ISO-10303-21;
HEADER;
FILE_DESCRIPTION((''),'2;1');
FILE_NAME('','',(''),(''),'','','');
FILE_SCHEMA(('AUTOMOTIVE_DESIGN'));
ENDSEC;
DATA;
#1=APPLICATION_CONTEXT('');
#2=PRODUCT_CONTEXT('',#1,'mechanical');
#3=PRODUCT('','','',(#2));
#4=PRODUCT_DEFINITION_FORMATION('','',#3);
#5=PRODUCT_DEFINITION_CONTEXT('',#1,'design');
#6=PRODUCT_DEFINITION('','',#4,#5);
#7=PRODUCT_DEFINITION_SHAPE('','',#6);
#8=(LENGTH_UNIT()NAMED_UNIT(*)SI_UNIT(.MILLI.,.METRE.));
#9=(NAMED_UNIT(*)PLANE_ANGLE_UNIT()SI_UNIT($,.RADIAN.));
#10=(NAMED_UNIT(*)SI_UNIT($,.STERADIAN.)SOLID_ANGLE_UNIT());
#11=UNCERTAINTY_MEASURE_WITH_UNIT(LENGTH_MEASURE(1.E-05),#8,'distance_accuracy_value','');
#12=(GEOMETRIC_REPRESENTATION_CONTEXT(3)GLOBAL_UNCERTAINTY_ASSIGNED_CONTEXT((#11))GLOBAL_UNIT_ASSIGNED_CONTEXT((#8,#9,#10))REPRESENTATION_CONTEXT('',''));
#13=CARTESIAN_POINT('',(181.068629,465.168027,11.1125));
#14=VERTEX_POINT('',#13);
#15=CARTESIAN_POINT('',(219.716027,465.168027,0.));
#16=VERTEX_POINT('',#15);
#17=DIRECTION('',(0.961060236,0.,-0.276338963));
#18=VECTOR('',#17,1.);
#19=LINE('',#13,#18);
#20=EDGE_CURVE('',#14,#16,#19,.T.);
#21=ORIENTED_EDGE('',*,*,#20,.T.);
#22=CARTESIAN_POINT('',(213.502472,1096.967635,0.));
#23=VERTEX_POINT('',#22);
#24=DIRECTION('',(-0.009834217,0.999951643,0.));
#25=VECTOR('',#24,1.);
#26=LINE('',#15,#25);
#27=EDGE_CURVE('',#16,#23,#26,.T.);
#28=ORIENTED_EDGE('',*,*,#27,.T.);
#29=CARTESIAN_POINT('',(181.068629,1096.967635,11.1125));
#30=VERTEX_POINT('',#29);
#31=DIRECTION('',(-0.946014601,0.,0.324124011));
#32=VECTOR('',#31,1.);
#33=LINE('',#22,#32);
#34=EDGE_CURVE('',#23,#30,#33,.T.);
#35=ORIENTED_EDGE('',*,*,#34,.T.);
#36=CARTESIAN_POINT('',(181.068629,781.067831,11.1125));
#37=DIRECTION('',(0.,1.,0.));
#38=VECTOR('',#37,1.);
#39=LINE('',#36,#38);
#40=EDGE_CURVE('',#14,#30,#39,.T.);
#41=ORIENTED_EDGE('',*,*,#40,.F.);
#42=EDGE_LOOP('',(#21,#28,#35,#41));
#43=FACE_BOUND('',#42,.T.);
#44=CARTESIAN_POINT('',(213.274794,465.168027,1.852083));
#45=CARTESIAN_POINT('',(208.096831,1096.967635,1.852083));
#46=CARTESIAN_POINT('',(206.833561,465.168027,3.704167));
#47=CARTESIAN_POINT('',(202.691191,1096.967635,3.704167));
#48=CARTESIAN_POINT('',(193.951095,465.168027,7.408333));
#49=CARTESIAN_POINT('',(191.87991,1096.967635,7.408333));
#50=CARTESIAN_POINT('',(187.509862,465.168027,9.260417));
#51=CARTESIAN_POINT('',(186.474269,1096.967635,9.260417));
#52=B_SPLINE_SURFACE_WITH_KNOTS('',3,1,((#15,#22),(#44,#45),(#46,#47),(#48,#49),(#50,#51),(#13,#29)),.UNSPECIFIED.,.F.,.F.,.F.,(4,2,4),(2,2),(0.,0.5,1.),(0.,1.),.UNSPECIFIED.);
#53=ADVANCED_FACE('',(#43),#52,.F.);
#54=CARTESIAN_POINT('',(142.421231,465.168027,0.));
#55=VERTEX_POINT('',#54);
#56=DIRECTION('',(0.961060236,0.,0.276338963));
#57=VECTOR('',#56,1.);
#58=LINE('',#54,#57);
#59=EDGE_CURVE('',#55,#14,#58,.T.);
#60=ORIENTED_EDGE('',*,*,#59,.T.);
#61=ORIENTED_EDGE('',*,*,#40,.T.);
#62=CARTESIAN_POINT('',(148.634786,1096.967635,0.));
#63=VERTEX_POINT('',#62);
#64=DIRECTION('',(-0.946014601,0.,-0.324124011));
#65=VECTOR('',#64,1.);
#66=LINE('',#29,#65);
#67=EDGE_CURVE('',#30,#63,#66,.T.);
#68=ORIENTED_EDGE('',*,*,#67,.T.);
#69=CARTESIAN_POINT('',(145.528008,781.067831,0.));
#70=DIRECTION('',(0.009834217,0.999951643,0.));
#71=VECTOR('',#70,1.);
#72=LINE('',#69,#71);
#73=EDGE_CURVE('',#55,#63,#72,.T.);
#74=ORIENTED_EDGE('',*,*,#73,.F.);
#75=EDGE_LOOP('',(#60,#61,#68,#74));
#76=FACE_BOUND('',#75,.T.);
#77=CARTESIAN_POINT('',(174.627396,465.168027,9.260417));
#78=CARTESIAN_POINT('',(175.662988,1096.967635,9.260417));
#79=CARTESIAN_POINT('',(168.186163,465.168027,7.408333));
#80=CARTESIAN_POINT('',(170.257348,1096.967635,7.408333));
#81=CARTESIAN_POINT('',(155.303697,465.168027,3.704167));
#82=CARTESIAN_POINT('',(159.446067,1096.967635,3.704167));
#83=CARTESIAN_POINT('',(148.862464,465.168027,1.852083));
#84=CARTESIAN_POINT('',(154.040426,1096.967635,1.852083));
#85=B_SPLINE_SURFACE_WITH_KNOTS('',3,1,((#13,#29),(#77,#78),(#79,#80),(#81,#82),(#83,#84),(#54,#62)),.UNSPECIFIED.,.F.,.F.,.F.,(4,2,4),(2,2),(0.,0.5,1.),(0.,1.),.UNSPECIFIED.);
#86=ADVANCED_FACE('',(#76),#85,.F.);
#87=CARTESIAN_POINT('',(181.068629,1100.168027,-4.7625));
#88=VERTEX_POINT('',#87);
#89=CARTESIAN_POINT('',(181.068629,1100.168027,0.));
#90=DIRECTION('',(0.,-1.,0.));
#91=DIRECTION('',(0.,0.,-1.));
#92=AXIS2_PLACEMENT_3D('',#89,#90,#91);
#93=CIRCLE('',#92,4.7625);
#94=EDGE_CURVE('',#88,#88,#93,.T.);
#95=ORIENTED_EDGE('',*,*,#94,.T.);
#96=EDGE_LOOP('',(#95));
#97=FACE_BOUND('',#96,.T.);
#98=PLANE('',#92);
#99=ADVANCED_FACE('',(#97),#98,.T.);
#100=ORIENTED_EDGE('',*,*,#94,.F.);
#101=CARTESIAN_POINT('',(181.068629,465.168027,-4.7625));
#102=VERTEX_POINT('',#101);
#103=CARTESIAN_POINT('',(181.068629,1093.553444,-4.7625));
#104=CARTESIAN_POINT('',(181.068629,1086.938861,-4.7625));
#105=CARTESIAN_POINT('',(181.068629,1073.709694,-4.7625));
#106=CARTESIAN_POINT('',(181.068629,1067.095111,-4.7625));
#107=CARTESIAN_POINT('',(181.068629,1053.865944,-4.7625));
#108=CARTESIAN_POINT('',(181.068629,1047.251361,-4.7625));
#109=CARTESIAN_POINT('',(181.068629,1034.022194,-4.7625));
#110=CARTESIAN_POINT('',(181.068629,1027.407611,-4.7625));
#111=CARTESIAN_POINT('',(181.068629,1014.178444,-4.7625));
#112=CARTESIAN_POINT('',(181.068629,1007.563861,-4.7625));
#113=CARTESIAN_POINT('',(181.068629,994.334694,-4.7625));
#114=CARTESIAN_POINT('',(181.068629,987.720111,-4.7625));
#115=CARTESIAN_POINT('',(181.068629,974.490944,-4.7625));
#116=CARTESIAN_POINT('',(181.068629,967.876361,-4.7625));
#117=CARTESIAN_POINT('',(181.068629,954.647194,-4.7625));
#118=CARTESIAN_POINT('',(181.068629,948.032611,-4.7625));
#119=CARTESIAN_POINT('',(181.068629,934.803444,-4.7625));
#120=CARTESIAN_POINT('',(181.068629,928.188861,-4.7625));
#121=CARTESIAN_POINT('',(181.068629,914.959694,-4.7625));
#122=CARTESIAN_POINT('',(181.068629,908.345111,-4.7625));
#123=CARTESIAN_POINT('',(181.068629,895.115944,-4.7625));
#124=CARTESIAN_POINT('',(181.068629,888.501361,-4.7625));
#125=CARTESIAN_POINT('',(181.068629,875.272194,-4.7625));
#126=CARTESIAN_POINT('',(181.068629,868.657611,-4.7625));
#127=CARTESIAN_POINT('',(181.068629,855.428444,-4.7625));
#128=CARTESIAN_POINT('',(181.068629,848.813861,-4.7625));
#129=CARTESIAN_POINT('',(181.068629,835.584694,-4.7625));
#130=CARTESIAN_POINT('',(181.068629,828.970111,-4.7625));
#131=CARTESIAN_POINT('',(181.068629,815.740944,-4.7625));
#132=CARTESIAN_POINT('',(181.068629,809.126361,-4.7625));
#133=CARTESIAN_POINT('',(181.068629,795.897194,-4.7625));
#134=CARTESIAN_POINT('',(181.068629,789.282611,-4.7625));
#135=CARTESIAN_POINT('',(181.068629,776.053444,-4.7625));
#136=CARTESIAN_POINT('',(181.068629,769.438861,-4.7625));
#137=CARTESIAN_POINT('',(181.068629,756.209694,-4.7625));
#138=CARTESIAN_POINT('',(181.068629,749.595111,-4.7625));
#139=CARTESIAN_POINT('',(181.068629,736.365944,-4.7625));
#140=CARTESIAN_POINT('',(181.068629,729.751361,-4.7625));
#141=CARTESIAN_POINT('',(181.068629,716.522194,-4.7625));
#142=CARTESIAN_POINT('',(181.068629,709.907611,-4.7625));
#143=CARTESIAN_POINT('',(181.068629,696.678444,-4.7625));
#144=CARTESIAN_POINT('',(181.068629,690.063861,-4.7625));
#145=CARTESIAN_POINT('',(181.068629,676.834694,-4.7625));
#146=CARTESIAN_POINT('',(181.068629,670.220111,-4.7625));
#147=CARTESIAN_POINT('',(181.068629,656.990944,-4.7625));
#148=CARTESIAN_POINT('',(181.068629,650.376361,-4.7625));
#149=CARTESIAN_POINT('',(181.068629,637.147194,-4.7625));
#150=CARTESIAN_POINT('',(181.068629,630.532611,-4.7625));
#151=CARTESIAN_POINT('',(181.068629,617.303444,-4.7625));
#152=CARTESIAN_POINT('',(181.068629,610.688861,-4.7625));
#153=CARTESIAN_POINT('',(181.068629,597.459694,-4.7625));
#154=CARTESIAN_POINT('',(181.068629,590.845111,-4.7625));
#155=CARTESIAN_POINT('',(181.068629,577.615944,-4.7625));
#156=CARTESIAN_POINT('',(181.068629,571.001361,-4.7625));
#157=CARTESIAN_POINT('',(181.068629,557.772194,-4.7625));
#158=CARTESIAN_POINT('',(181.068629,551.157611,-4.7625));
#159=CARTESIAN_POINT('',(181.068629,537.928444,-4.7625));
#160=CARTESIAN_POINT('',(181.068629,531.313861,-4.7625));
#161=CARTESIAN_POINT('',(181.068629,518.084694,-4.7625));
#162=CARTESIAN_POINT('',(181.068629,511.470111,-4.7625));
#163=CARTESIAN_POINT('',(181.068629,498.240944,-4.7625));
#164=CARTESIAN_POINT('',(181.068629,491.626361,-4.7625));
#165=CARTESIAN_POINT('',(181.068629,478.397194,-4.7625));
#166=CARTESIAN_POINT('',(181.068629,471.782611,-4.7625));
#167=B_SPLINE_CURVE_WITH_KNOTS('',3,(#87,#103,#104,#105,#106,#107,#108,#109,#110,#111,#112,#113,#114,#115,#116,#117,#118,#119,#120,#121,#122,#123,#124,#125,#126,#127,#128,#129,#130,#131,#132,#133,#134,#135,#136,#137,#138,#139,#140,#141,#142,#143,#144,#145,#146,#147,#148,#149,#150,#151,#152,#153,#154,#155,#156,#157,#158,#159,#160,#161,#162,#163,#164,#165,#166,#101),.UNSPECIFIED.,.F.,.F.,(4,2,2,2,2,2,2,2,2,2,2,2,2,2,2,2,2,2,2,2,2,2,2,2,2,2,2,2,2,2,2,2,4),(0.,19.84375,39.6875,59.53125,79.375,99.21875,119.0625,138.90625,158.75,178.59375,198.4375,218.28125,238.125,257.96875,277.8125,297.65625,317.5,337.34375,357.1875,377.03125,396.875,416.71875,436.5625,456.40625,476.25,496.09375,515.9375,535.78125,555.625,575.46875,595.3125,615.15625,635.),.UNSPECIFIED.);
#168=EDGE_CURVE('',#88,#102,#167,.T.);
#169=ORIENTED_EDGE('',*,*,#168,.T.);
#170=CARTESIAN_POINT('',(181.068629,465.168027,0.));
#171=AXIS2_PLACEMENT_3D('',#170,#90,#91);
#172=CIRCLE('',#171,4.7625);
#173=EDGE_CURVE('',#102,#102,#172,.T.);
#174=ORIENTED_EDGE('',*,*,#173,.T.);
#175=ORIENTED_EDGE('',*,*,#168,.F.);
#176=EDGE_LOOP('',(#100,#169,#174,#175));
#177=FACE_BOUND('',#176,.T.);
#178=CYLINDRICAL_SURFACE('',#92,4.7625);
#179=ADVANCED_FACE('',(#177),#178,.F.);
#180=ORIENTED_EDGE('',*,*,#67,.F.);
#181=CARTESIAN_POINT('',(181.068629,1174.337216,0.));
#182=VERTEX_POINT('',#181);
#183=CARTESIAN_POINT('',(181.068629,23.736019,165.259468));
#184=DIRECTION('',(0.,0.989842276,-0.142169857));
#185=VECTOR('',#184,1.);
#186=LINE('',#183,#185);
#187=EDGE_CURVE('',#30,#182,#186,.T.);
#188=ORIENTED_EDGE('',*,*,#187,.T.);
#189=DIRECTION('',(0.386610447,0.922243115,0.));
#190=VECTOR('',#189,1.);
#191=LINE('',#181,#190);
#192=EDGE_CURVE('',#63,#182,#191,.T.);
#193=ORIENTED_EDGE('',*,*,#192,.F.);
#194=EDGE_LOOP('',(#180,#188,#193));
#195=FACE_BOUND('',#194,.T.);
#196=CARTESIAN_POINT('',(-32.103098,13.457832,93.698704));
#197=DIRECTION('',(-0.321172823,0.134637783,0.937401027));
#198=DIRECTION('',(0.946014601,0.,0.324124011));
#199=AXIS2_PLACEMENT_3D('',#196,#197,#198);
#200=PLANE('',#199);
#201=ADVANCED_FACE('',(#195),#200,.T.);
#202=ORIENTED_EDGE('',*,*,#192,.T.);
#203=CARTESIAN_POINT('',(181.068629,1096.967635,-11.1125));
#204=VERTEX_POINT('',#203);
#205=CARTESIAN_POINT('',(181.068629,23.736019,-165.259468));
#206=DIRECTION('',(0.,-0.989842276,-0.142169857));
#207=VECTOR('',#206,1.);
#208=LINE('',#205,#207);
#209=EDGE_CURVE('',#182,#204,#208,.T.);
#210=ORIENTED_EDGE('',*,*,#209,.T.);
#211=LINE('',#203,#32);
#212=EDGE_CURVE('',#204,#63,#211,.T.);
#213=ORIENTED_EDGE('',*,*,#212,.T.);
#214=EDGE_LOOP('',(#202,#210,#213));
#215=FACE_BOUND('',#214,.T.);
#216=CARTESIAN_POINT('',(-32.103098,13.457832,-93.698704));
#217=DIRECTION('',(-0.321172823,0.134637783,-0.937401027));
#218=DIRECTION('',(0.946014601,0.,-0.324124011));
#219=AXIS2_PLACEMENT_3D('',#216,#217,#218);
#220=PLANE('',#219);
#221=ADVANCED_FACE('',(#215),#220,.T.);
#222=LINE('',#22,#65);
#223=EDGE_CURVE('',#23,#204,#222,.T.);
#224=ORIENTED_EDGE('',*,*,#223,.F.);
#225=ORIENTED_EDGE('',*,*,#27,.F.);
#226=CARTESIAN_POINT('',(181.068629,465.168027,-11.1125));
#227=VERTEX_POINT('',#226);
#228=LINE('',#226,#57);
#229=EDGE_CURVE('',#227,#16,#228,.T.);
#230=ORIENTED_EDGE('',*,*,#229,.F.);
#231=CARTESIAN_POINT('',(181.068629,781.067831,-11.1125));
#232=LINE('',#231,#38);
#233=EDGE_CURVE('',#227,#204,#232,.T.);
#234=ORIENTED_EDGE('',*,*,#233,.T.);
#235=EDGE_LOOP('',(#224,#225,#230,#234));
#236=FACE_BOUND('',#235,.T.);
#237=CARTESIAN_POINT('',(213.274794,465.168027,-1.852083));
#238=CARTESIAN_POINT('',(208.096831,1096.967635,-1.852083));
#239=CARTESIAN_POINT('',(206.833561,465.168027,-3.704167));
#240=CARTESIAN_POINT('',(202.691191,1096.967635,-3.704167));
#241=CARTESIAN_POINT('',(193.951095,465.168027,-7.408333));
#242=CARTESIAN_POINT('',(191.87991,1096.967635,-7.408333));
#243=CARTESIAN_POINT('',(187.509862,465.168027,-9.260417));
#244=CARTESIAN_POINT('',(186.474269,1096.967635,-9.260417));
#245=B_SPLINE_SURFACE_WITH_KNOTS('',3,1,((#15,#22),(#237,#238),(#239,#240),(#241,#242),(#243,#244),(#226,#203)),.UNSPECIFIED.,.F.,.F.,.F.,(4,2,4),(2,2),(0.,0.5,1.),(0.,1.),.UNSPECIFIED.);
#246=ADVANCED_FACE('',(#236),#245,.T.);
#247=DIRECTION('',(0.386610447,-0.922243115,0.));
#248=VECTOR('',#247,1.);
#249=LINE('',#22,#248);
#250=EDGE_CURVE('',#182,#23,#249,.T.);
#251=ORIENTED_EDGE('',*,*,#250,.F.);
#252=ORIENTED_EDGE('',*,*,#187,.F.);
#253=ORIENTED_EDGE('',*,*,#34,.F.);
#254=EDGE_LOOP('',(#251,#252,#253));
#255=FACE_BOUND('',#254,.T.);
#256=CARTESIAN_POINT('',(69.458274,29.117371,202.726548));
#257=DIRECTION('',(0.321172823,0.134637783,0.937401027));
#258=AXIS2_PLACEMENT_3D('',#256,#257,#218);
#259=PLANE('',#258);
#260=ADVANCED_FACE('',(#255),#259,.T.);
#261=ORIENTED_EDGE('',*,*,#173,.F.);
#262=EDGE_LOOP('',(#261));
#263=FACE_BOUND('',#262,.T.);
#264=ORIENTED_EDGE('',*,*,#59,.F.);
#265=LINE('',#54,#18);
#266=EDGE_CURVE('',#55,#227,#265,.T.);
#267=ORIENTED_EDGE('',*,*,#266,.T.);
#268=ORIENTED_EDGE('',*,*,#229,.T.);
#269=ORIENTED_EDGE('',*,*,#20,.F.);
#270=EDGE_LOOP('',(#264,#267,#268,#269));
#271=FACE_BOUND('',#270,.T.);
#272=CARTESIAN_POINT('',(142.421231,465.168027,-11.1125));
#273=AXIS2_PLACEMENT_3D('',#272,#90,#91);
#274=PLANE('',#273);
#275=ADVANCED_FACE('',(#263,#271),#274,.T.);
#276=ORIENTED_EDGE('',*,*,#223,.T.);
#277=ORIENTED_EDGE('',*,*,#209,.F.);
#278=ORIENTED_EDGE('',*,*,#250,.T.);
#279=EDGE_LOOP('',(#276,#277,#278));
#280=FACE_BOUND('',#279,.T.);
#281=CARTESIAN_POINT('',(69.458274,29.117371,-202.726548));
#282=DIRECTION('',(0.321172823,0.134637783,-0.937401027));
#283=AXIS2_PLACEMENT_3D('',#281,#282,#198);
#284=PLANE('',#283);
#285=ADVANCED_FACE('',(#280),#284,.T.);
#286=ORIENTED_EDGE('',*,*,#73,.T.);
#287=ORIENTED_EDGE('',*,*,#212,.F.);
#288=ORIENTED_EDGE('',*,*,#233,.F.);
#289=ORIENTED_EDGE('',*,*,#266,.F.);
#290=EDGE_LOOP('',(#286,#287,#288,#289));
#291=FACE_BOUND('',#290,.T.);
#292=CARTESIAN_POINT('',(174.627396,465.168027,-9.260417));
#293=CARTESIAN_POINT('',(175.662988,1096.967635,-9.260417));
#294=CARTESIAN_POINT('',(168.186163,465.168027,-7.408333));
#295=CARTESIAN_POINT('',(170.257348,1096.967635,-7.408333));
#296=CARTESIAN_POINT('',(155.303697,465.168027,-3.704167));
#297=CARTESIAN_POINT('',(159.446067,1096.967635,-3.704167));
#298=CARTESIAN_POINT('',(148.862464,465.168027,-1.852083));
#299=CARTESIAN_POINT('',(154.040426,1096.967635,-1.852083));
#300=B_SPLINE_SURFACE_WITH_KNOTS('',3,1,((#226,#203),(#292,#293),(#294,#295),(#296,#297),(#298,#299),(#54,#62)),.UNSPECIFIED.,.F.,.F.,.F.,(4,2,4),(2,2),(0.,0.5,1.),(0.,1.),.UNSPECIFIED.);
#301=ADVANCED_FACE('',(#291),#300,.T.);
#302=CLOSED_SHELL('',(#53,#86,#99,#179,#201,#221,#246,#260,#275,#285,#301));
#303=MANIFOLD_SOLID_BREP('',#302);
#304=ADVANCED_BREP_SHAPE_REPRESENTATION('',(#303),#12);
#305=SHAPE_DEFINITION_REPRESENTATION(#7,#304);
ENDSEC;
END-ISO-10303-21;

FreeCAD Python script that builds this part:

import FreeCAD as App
import Part
import Sketcher

V = App.Vector
Q = App.Units.Quantity


def add_polygon(sketch, points):
    """Adds a closed chain of lines whose ends are joined by coincident constraints."""
    first, n = sketch.GeometryCount, len(points)
    for a, b in zip(points, points[1:] + points[:1]):
        sketch.addGeometry(Part.LineSegment(App.Vector(*a, 0), App.Vector(*b, 0)), False)
    for i in range(n):
        sketch.addConstraint(Sketcher.Constraint("Coincident", first + i, 2, first + (i + 1) % n, 1))

doc = App.newDocument("Part")
body = doc.addObject("PartDesign::Body", "Body")

sketch1 = body.newObject("Sketcher::SketchObject", "Sketch")
sketch1.AttachmentSupport = (doc.getObject("XY_Plane"), [""])
sketch1.MapMode = "FlatFace"
add_polygon(sketch1, [(142, 465), (220, 465), (214, 1097), (181, 1174), (149, 1097)])
sketch1.addConstraint(Sketcher.Constraint("Horizontal", 0))
sketch1.addConstraint(Sketcher.Constraint("Horizontal", 1, 2, 3, 2))
sketch1.addConstraint(Sketcher.Constraint("Equal", 2, 3))
sketch1.addConstraint(Sketcher.Constraint("Equal", 1, 4))
sketch1.addConstraint(Sketcher.Constraint("Distance", 1, Q("631.830161 mm")))
sketch1.addConstraint(Sketcher.Constraint("DistanceX", 0, 1, 0, 2, Q("77.294796 mm")))
sketch1.addConstraint(Sketcher.Constraint("DistanceX", -1, 1, 1, 2, Q("213.502472 mm")))
sketch1.addConstraint(Sketcher.Constraint("DistanceX", -1, 1, 2, 2, Q("181.068629 mm")))
sketch1.addConstraint(Sketcher.Constraint("DistanceY", 1, 2, 2, 2, Q("77.369581 mm")))
sketch1.addConstraint(Sketcher.Constraint("DistanceY", -1, 1, 0, 2, Q("465.168027 mm")))
pad1 = body.newObject("PartDesign::Pad", "Pad")
pad1.Profile = sketch1
pad1.Type = "TwoLengths"
pad1.Length = Q("0.4375 in")
pad1.Length2 = Q("0.4375 in")

sketch2 = body.newObject("Sketcher::SketchObject", "Sketch001")
sketch2.AttachmentSupport = (doc.getObject("XZ_Plane"), [""])
sketch2.MapMode = "FlatFace"
sketch2.AttachmentOffset = App.Placement(V(0, 0, -465.168027), App.Rotation())
add_polygon(sketch2, [(142.4, 0), (181.1, 11.1), (219.7, 0), (222.7, 0), (222.7, 15.3), (137.8, 15.3), (137.8, 0)])
sketch2.addConstraint(Sketcher.Constraint("Horizontal", 2))
sketch2.addConstraint(Sketcher.Constraint("Vertical", 3))
sketch2.addConstraint(Sketcher.Constraint("Horizontal", 4))
sketch2.addConstraint(Sketcher.Constraint("Vertical", 5))
sketch2.addConstraint(Sketcher.Constraint("Horizontal", 6))
sketch2.addConstraint(Sketcher.Constraint("PointOnObject", 1, 2, -1))
sketch2.addConstraint(Sketcher.Constraint("PointOnObject", 5, 2, -1))
sketch2.addConstraint(Sketcher.Constraint("Equal", 0, 1))
sketch2.addConstraint(Sketcher.Constraint("DistanceY", -1, 1, 0, 2, Q("0.4375 in")))
sketch2.addConstraint(Sketcher.Constraint("DistanceX", 2, 1, 2, 2, Q("2.989111 mm")))
sketch2.addConstraint(Sketcher.Constraint("DistanceX", 4, 2, 4, 1, Q("84.85651 mm")))
sketch2.addConstraint(Sketcher.Constraint("DistanceX", 4, 2, 0, 2, Q("43.22 mm")))
sketch2.addConstraint(Sketcher.Constraint("DistanceY", 3, 1, 3, 2, Q("15.258366 mm")))
sketch2.addConstraint(Sketcher.Constraint("DistanceX", -1, 1, 0, 2, Q("181.068629 mm")))

sketch3 = body.newObject("Sketcher::SketchObject", "Sketch002")
sketch3.AttachmentSupport = (doc.getObject("XZ_Plane"), [""])
sketch3.MapMode = "FlatFace"
sketch3.AttachmentOffset = App.Placement(V(0, 0, -1096.967635), App.Rotation())
add_polygon(sketch3, [(214, 0), (181, 11), (149, 0), (138, 0), (138, 15), (223, 15), (223, 0)])
sketch3.addConstraint(Sketcher.Constraint("Horizontal", 2))
sketch3.addConstraint(Sketcher.Constraint("Vertical", 3))
sketch3.addConstraint(Sketcher.Constraint("Horizontal", 4))
sketch3.addConstraint(Sketcher.Constraint("Vertical", 5))
sketch3.addConstraint(Sketcher.Constraint("Horizontal", 6))
sketch3.addConstraint(Sketcher.Constraint("PointOnObject", 1, 2, -1))
sketch3.addConstraint(Sketcher.Constraint("PointOnObject", 5, 2, -1))
sketch3.addConstraint(Sketcher.Constraint("Equal", 0, 1))
sketch3.addConstraint(Sketcher.Constraint("DistanceY", -1, 1, 0, 2, Q("0.4375 in")))
sketch3.addConstraint(Sketcher.Constraint("DistanceX", 4, 1, 4, 2, Q("84.85651 mm")))
sketch3.addConstraint(Sketcher.Constraint("DistanceX", 2, 2, 0, 2, Q("43.22 mm")))
sketch3.addConstraint(Sketcher.Constraint("DistanceX", 2, 2, 2, 1, Q("10.786158 mm")))
sketch3.addConstraint(Sketcher.Constraint("DistanceY", 3, 1, 3, 2, Q("15.258366 mm")))
sketch3.addConstraint(Sketcher.Constraint("DistanceX", -1, 1, 0, 2, Q("181.068629 mm")))

subtractiveloft = body.newObject("PartDesign::SubtractiveLoft", "SubtractiveLoft")
subtractiveloft.Profile = sketch2
subtractiveloft.Sections = [sketch3]
doc.recompute()

mirrored = body.newObject("PartDesign::Mirrored", "Mirrored")
mirrored.Originals = [subtractiveloft]
mirrored.MirrorPlane = (doc.getObject("XY_Plane"), [""])
body.Tip = mirrored

sketch4 = body.newObject("Sketcher::SketchObject", "Sketch003")
sketch4.Placement = App.Placement(V(-32.103098, 13.457832, 93.698704), App.Rotation(V(0.9470206, 0.045661094, 0.317910438), V(0, 0.989842276, -0.142169857), V(-0.321172823, 0.134637783, 0.937401027), "ZXY"))
add_polygon(sketch4, [(164, 1281), (164, 998), (274, 998), (274, 1281)])
sketch4.addConstraint(Sketcher.Constraint("Vertical", 0))
sketch4.addConstraint(Sketcher.Constraint("Horizontal", 1))
sketch4.addConstraint(Sketcher.Constraint("Vertical", 2))
sketch4.addConstraint(Sketcher.Constraint("Horizontal", 3))
sketch4.addConstraint(Sketcher.Constraint("DistanceX", 1, 1, 1, 2, Q("109.877469 mm")))
sketch4.addConstraint(Sketcher.Constraint("DistanceY", 0, 2, 0, 1, Q("283.051122 mm")))
sketch4.addConstraint(Sketcher.Constraint("DistanceX", -1, 1, 0, 2, Q("164.41051 mm")))
sketch4.addConstraint(Sketcher.Constraint("DistanceY", -1, 1, 0, 2, Q("997.778163 mm")))
pocket1 = body.newObject("PartDesign::Pocket", "Pocket")
pocket1.Profile = sketch4
pocket1.Type = "ThroughAll"
pocket1.Reversed = True

sketch5 = body.newObject("Sketcher::SketchObject", "Sketch004")
sketch5.Placement = App.Placement(V(69.458274, 29.117371, 202.726548), App.Rotation(V(0.9470206, -0.045661094, -0.317910438), V(0, 0.989842276, -0.142169857), V(0.321172823, 0.134637783, 0.937401027), "ZXY"))
add_polygon(sketch5, [(57, 1173), (57, 1064), (206, 1064), (206, 1173)])
sketch5.addConstraint(Sketcher.Constraint("Vertical", 0))
sketch5.addConstraint(Sketcher.Constraint("Horizontal", 1))
sketch5.addConstraint(Sketcher.Constraint("Vertical", 2))
sketch5.addConstraint(Sketcher.Constraint("Horizontal", 3))
sketch5.addConstraint(Sketcher.Constraint("DistanceY", 0, 2, 0, 1, Q("108.921762 mm")))
sketch5.addConstraint(Sketcher.Constraint("DistanceX", 1, 1, 1, 2, Q("149.121483 mm")))
sketch5.addConstraint(Sketcher.Constraint("DistanceY", -1, 1, 0, 2, Q("1064.46137 mm")))
sketch5.addConstraint(Sketcher.Constraint("DistanceX", -1, 1, 1, 2, Q("206.313558 mm")))
pocket2 = body.newObject("PartDesign::Pocket", "Pocket001")
pocket2.Profile = sketch5
pocket2.Type = "ThroughAll"
pocket2.Reversed = True
doc.recompute()

mirrored2 = body.newObject("PartDesign::Mirrored", "Mirrored001")
mirrored2.Originals = [pocket1, pocket2]
mirrored2.MirrorPlane = (doc.getObject("XY_Plane"), [""])
body.Tip = mirrored2

sketch6 = body.newObject("Sketcher::SketchObject", "Sketch005")
sketch6.AttachmentSupport = (doc.getObject("XZ_Plane"), [""])
sketch6.MapMode = "FlatFace"
sketch6.AttachmentOffset = App.Placement(V(0, 0, -465.168027), App.Rotation())
sketch6.addGeometry(Part.Circle(V(181.1, 0, 0), V(0, 0, 1), 4.8), False)
sketch6.addConstraint(Sketcher.Constraint("PointOnObject", 0, 3, -1))
sketch6.addConstraint(Sketcher.Constraint("Diameter", 0, Q("0.375 in")))
sketch6.addConstraint(Sketcher.Constraint("DistanceX", -1, 1, 0, 3, Q("181.068629 mm")))
pocket3 = body.newObject("PartDesign::Pocket", "Pocket002")
pocket3.Profile = sketch6
pocket3.Length = Q("25 in")

doc.recompute()
